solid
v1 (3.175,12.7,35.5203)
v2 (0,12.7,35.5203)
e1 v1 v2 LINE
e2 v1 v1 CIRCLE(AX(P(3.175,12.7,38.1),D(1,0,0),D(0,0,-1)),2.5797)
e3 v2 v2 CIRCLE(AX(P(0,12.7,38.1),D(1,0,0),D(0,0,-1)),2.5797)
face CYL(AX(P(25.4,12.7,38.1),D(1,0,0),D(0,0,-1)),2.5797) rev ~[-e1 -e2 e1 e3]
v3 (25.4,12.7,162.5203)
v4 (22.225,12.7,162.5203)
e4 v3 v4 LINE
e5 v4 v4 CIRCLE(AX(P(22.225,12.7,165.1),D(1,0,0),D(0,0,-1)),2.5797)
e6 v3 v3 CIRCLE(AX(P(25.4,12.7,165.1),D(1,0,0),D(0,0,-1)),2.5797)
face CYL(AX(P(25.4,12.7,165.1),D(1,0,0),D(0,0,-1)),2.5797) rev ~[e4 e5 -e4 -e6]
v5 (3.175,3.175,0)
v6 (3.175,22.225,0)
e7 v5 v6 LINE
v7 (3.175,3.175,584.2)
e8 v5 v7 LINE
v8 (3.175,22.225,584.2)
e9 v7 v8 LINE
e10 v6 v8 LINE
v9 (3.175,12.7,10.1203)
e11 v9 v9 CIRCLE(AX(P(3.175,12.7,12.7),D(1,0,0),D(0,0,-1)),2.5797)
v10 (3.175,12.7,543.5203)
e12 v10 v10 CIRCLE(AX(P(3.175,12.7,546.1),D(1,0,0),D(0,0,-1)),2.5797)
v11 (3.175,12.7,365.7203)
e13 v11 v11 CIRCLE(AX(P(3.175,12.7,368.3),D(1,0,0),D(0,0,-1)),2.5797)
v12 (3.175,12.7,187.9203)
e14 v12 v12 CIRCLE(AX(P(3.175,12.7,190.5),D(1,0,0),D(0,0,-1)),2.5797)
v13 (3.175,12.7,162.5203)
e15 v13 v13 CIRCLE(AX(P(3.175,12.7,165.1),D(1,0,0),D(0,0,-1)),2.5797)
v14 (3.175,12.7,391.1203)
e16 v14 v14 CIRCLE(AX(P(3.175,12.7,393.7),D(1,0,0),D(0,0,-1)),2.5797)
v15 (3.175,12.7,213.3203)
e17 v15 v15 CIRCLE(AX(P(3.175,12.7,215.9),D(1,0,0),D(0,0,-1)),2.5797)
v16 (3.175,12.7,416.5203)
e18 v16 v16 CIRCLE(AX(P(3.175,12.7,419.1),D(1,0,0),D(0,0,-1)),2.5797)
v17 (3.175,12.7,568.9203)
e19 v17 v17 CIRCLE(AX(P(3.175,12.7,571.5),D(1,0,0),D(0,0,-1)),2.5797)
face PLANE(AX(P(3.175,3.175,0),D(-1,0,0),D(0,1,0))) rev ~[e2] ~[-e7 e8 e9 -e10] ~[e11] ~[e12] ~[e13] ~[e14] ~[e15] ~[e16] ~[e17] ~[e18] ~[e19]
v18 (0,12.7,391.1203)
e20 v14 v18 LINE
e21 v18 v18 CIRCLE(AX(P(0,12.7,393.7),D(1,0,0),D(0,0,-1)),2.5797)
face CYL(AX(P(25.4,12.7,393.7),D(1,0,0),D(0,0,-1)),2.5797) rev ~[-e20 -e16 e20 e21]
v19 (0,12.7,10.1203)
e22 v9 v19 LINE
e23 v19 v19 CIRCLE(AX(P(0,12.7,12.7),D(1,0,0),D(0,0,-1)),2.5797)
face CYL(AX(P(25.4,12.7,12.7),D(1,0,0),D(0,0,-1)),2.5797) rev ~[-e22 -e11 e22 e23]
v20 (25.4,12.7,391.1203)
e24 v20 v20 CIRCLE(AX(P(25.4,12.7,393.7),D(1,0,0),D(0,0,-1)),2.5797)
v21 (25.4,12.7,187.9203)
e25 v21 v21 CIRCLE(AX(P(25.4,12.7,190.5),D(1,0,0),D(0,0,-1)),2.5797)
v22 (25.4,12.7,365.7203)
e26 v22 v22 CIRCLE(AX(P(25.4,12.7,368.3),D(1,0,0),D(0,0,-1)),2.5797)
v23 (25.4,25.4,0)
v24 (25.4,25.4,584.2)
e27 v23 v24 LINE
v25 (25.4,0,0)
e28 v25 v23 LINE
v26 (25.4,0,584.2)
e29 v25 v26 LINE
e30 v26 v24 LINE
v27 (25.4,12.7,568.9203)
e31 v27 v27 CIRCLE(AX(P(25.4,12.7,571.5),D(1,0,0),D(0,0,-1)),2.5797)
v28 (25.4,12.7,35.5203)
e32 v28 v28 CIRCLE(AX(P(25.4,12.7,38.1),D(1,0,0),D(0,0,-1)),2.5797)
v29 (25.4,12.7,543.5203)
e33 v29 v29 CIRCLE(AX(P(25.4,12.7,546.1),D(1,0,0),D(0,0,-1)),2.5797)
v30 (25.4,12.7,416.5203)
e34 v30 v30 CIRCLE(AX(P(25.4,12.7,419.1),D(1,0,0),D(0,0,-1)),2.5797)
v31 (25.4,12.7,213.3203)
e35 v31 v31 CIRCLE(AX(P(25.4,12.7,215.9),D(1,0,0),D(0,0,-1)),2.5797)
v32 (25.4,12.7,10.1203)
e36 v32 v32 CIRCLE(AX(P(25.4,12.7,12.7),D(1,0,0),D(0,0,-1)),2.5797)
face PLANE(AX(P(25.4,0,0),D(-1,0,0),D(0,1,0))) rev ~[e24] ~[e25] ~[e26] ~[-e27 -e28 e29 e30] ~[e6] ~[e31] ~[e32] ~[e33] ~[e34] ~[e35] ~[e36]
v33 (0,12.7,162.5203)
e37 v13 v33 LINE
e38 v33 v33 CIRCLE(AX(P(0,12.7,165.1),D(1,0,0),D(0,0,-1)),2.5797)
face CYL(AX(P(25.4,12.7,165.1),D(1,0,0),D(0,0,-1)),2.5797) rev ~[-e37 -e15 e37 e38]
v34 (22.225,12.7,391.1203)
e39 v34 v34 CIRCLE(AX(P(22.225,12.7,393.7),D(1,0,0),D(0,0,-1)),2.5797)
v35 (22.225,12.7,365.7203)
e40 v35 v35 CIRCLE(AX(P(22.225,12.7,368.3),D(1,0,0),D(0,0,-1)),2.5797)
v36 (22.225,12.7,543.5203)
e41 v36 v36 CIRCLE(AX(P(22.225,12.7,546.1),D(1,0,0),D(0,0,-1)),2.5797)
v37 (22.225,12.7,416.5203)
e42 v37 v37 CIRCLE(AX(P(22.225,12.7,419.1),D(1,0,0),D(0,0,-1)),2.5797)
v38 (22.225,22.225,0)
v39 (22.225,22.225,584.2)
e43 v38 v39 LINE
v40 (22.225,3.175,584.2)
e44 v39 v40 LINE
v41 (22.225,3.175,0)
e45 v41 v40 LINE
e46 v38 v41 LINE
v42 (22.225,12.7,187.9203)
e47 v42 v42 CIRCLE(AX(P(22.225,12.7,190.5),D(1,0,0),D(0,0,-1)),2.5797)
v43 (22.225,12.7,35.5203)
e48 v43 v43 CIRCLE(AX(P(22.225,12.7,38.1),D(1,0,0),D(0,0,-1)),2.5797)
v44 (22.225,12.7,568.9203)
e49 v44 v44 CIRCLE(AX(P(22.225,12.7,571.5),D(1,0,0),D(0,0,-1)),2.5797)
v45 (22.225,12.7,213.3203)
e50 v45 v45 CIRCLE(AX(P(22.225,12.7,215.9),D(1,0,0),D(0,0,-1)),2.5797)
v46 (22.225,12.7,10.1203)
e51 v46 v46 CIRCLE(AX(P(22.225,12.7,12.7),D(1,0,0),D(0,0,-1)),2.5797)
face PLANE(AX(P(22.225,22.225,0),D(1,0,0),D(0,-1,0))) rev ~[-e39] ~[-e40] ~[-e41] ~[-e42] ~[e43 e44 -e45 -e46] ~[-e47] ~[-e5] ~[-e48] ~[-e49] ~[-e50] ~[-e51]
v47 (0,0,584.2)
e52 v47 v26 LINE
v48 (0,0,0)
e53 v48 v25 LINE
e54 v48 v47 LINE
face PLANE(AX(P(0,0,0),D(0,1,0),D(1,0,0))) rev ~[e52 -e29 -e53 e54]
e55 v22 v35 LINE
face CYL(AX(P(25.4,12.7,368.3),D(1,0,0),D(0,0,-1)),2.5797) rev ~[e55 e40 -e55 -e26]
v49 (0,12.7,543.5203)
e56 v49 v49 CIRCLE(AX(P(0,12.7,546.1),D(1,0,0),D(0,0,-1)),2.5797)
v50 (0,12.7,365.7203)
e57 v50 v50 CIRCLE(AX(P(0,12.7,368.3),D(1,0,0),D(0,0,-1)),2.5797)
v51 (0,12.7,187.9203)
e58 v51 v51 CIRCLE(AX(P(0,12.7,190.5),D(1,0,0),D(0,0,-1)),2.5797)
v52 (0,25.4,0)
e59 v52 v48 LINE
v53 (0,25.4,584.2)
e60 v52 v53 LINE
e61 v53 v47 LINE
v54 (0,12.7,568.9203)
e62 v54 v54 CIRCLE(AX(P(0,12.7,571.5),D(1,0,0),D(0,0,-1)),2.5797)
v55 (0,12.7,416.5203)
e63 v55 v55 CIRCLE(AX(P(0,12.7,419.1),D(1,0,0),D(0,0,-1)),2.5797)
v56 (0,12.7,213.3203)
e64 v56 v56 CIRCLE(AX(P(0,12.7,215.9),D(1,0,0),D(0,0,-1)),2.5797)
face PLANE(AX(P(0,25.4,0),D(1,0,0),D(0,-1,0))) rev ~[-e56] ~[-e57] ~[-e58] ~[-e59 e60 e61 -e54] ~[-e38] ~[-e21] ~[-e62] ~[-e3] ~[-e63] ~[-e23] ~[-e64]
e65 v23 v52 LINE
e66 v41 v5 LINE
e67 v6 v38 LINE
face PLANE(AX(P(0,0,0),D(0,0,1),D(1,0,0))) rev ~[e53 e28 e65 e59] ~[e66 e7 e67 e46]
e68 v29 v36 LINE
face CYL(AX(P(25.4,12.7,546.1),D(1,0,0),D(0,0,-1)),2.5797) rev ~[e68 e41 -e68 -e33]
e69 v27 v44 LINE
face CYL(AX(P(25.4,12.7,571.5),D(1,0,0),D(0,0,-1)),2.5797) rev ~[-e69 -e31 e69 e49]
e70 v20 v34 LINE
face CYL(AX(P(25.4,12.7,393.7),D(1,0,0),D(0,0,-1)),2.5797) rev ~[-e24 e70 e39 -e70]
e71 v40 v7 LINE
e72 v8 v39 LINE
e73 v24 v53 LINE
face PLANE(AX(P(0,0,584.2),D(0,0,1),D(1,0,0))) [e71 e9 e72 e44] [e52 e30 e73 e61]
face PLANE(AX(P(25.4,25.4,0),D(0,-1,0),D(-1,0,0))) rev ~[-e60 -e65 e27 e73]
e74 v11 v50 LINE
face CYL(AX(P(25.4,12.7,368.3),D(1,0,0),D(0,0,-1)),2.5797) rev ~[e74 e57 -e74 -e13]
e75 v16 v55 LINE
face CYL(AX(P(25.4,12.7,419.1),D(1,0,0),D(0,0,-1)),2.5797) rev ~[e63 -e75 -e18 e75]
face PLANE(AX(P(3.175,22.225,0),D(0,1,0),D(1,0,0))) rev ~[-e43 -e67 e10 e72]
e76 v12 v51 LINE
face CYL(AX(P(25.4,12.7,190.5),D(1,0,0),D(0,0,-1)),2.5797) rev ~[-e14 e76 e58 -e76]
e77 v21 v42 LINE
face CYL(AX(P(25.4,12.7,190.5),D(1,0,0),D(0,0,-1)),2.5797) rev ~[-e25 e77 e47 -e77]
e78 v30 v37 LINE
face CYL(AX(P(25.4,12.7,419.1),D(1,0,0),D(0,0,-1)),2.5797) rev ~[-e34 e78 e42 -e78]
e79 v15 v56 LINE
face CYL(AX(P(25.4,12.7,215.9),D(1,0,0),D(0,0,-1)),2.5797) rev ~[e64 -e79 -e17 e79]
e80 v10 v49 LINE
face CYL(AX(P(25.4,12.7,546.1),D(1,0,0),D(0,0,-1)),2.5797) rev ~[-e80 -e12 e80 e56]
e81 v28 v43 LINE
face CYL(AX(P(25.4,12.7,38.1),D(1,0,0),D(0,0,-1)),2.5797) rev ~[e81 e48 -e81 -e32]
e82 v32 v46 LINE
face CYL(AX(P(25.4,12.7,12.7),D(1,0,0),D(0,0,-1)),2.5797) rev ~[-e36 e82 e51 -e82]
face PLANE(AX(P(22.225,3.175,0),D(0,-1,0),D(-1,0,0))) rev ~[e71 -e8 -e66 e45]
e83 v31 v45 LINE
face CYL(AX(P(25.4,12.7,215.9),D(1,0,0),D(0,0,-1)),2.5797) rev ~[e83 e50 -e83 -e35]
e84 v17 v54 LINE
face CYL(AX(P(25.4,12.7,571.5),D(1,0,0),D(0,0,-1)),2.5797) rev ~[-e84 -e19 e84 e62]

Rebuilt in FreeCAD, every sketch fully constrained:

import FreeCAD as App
import Part
import Sketcher
Q = App.Units.Quantity

doc = App.newDocument("Part")
body = doc.addObject("PartDesign::Body", "Body")

# Sketch on XY plane
sketch1 = doc.addObject("Sketcher::SketchObject", "Sketch")
body.addObject(sketch1)
sketch1.AttachmentSupport = (doc.XY_Plane, [""])
sketch1.MapMode = "FlatFace"
sketch1.addGeometry(Part.LineSegment(App.Vector(0, 25, 0), App.Vector(0, 0, 0)), False)
sketch1.addGeometry(Part.LineSegment(App.Vector(0, 0, 0), App.Vector(25, 0, 0)), False)
sketch1.addGeometry(Part.LineSegment(App.Vector(25, 0, 0), App.Vector(25, 25, 0)), False)
sketch1.addGeometry(Part.LineSegment(App.Vector(25, 25, 0), App.Vector(0, 25, 0)), False)
sketch1.addGeometry(Part.LineSegment(App.Vector(3, 3, 0), App.Vector(3, 22, 0)), False)
sketch1.addGeometry(Part.LineSegment(App.Vector(3, 22, 0), App.Vector(22, 22, 0)), False)
sketch1.addGeometry(Part.LineSegment(App.Vector(22, 22, 0), App.Vector(22, 3, 0)), False)
sketch1.addGeometry(Part.LineSegment(App.Vector(22, 3, 0), App.Vector(3, 3, 0)), False)
sketch1.addConstraint(Sketcher.Constraint("Coincident", 0, 2, 1, 1))
sketch1.addConstraint(Sketcher.Constraint("Coincident", 1, 2, 2, 1))
sketch1.addConstraint(Sketcher.Constraint("Coincident", 2, 2, 3, 1))
sketch1.addConstraint(Sketcher.Constraint("Coincident", 3, 2, 0, 1))
sketch1.addConstraint(Sketcher.Constraint("Coincident", 4, 2, 5, 1))
sketch1.addConstraint(Sketcher.Constraint("Coincident", 5, 2, 6, 1))
sketch1.addConstraint(Sketcher.Constraint("Coincident", 6, 2, 7, 1))
sketch1.addConstraint(Sketcher.Constraint("Coincident", 7, 2, 4, 1))
sketch1.addConstraint(Sketcher.Constraint("Vertical", 0))
sketch1.addConstraint(Sketcher.Constraint("Horizontal", 1))
sketch1.addConstraint(Sketcher.Constraint("Vertical", 2))
sketch1.addConstraint(Sketcher.Constraint("Horizontal", 3))
sketch1.addConstraint(Sketcher.Constraint("Vertical", 4))
sketch1.addConstraint(Sketcher.Constraint("Horizontal", 5))
sketch1.addConstraint(Sketcher.Constraint("Vertical", 6))
sketch1.addConstraint(Sketcher.Constraint("Horizontal", 7))
sketch1.addConstraint(Sketcher.Constraint("Coincident", 0, 2, -1, 1))
sketch1.addConstraint(Sketcher.Constraint("Equal", 3, 0))
sketch1.addConstraint(Sketcher.Constraint("Equal", 7, 4))
sketch1.addConstraint(Sketcher.Constraint("DistanceX", 1, 1, 1, 2, Q("1 in")))
sketch1.addConstraint(Sketcher.Constraint("DistanceX", -1, 1, 4, 2, Q("0.125 in")))
sketch1.addConstraint(Sketcher.Constraint("DistanceY", -1, 1, 6, 2, Q("0.125 in")))
sketch1.addConstraint(Sketcher.Constraint("DistanceY", 4, 2, 3, 2, Q("0.125 in")))
pad1 = doc.addObject("PartDesign::Pad", "Pad")
body.addObject(pad1)
pad1.Profile = sketch1
pad1.Length = Q("23 in")

# Sketch on YZ plane
sketch2 = doc.addObject("Sketcher::SketchObject", "Sketch001")
body.addObject(sketch2)
sketch2.AttachmentSupport = (doc.YZ_Plane, [""])
sketch2.MapMode = "FlatFace"
sketch2.AttachmentOffset = App.Placement(App.Vector(0, 0, 1 * 25.4), App.Rotation())
sketch2.addGeometry(Part.Circle(App.Vector(12.7, 571.5, 0), App.Vector(0, 0, 1), 2.6), False)
sketch2.addGeometry(Part.Circle(App.Vector(12.7, 546.1, 0), App.Vector(0, 0, 1), 2.6), False)
sketch2.addGeometry(Part.Circle(App.Vector(12.7, 38.1, 0), App.Vector(0, 0, 1), 2.6), False)
sketch2.addGeometry(Part.Circle(App.Vector(12.7, 12.7, 0), App.Vector(0, 0, 1), 2.6), False)
sketch2.addConstraint(Sketcher.Constraint("Equal", 0, 1))
sketch2.addConstraint(Sketcher.Constraint("Equal", 1, 2))
sketch2.addConstraint(Sketcher.Constraint("Equal", 2, 3))
sketch2.addConstraint(Sketcher.Constraint("Vertical", 0, 3, 1, 3))
sketch2.addConstraint(Sketcher.Constraint("Vertical", 1, 3, 2, 3))
sketch2.addConstraint(Sketcher.Constraint("Vertical", 2, 3, 3, 3))
sketch2.addConstraint(Sketcher.Constraint("Diameter", 0, Q("0.203126 in")))
sketch2.addConstraint(Sketcher.Constraint("DistanceY", 1, 3, 0, 3, Q("1 in")))
sketch2.addConstraint(Sketcher.Constraint("DistanceY", 3, 3, 2, 3, Q("1 in")))
sketch2.addConstraint(Sketcher.Constraint("DistanceX", -1, 1, 0, 3, Q("0.5 in")))
sketch2.addConstraint(Sketcher.Constraint("DistanceY", -1, 1, 3, 3, Q("0.5 in")))
sketch2.addConstraint(Sketcher.Constraint("DistanceY", 2, 3, 1, 3, Q("20 in")))
pocket1 = doc.addObject("PartDesign::Pocket", "Pocket")
body.addObject(pocket1)
pocket1.Profile = sketch2
pocket1.Length = Q("23 in")

# Sketch on YZ plane
sketch3 = doc.addObject("Sketcher::SketchObject", "Sketch002")
body.addObject(sketch3)
sketch3.AttachmentSupport = (doc.YZ_Plane, [""])
sketch3.MapMode = "FlatFace"
sketch3.AttachmentOffset = App.Placement(App.Vector(0, 0, 1 * 25.4), App.Rotation())
sketch3.addGeometry(Part.Circle(App.Vector(12.7, 393.7, 0), App.Vector(0, 0, 1), 2.6), False)
sketch3.addGeometry(Part.Circle(App.Vector(12.7, 419.1, 0), App.Vector(0, 0, 1), 2.6), False)
sketch3.addGeometry(Part.Circle(App.Vector(12.7, 368.3, 0), App.Vector(0, 0, 1), 2.6), False)
sketch3.addGeometry(Part.Circle(App.Vector(12.7, 190.5, 0), App.Vector(0, 0, 1), 2.6), False)
sketch3.addGeometry(Part.Circle(App.Vector(12.7, 165.1, 0), App.Vector(0, 0, 1), 2.6), False)
sketch3.addGeometry(Part.Circle(App.Vector(12.7, 215.9, 0), App.Vector(0, 0, 1), 2.6), False)
sketch3.addConstraint(Sketcher.Constraint("Equal", 0, 1))
sketch3.addConstraint(Sketcher.Constraint("Equal", 1, 2))
sketch3.addConstraint(Sketcher.Constraint("Equal", 2, 3))
sketch3.addConstraint(Sketcher.Constraint("Equal", 3, 4))
sketch3.addConstraint(Sketcher.Constraint("Equal", 4, 5))
sketch3.addConstraint(Sketcher.Constraint("Vertical", 0, 3, 1, 3))
sketch3.addConstraint(Sketcher.Constraint("Vertical", 1, 3, 2, 3))
sketch3.addConstraint(Sketcher.Constraint("Vertical", 2, 3, 3, 3))
sketch3.addConstraint(Sketcher.Constraint("Vertical", 3, 3, 4, 3))
sketch3.addConstraint(Sketcher.Constraint("Vertical", 4, 3, 5, 3))
sketch3.addConstraint(Sketcher.Constraint("Diameter", 0, Q("0.203126 in")))
sketch3.addConstraint(Sketcher.Constraint("DistanceY", 0, 3, 1, 3, Q("1 in")))
sketch3.addConstraint(Sketcher.Constraint("DistanceY", 2, 3, 0, 3, Q("1 in")))
sketch3.addConstraint(Sketcher.Constraint("DistanceY", 4, 3, 3, 3, Q("1 in")))
sketch3.addConstraint(Sketcher.Constraint("DistanceY", 3, 3, 5, 3, Q("1 in")))
sketch3.addConstraint(Sketcher.Constraint("DistanceY", -1, 1, 3, 3, Q("7.5 in")))
sketch3.addConstraint(Sketcher.Constraint("DistanceY", 3, 3, 2, 3, Q("7 in")))
sketch3.addConstraint(Sketcher.Constraint("DistanceX", -1, 1, 0, 3, Q("0.5 in")))
pocket2 = doc.addObject("PartDesign::Pocket", "Pocket001")
body.addObject(pocket2)
pocket2.Profile = sketch3
pocket2.Length = Q("23 in")

doc.recompute()
